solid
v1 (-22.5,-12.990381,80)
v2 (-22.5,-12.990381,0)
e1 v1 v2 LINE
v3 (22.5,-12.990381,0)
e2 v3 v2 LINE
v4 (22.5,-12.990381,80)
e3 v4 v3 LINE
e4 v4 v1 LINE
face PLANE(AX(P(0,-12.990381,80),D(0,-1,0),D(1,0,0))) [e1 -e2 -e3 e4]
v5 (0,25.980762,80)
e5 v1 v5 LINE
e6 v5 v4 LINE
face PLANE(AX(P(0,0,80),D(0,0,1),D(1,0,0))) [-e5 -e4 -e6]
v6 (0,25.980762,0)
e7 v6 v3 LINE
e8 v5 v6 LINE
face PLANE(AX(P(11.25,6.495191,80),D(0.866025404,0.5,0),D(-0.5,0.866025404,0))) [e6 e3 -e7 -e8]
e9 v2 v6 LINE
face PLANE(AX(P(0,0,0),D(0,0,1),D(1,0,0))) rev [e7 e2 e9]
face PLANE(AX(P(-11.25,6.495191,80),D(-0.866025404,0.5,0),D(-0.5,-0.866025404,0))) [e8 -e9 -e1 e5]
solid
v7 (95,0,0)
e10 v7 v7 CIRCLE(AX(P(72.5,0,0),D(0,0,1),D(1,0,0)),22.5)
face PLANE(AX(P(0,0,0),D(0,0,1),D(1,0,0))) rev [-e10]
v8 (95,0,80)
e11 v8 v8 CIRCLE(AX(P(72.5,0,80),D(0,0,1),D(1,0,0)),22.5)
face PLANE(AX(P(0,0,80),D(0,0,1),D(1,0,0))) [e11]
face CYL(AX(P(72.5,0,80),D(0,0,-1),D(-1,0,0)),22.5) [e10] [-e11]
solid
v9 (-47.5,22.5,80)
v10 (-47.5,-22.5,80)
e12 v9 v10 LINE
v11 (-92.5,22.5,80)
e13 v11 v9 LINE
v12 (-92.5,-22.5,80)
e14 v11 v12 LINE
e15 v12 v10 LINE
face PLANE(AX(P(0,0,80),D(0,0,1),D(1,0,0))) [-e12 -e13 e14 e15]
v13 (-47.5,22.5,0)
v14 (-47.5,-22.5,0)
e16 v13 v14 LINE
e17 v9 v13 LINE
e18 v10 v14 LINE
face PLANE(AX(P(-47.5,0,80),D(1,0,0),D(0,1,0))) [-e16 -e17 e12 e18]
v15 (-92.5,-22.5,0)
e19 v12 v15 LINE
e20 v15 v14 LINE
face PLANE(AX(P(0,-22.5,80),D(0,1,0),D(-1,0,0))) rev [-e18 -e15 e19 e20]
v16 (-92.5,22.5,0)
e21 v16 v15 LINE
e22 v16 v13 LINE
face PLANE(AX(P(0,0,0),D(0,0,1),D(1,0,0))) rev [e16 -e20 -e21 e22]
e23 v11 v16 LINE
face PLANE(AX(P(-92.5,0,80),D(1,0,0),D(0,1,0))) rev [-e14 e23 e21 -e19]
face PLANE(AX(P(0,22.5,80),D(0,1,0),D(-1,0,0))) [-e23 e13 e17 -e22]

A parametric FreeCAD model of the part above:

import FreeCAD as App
import Part
import Sketcher
Q = App.Units.Quantity

doc = App.newDocument("Part")
body = doc.addObject("PartDesign::Body", "Body")

sketch1 = doc.addObject("Sketcher::SketchObject", "Sketch")
body.addObject(sketch1)
sketch1.AttachmentSupport = (doc.XY_Plane, [""])
sketch1.MapMode = "FlatFace"
sketch1.addGeometry(Part.Circle(App.Vector(72, 0, 0), App.Vector(0, 0, 1), 22), False)
sketch1.addConstraint(Sketcher.Constraint("PointOnObject", 0, 3, -1))
sketch1.addConstraint(Sketcher.Constraint("Diameter", 0, 45.0))
sketch1.addConstraint(Sketcher.Constraint("DistanceX", -1, 1, 0, 3, 72.5))
pad1 = doc.addObject("PartDesign::Pad", "Pad")
body.addObject(pad1)
pad1.Profile = sketch1
pad1.Length = 80
body2 = doc.addObject("PartDesign::Body", "Body001")

sketch2 = doc.addObject("Sketcher::SketchObject", "Sketch001")
body2.addObject(sketch2)
sketch2.AttachmentSupport = (doc.getObject("XY_Plane001"), [""])
sketch2.MapMode = "FlatFace"
sketch2.addGeometry(Part.LineSegment(App.Vector(0, 26, 0), App.Vector(-22, -13, 0)), False)
sketch2.addGeometry(Part.LineSegment(App.Vector(-22, -13, 0), App.Vector(22, -13, 0)), False)
sketch2.addGeometry(Part.LineSegment(App.Vector(22, -13, 0), App.Vector(0, 26, 0)), False)
sketch2.addConstraint(Sketcher.Constraint("Coincident", 0, 2, 1, 1))
sketch2.addConstraint(Sketcher.Constraint("Coincident", 1, 2, 2, 1))
sketch2.addConstraint(Sketcher.Constraint("Coincident", 2, 2, 0, 1))
sketch2.addConstraint(Sketcher.Constraint("Horizontal", 1))
sketch2.addConstraint(Sketcher.Constraint("PointOnObject", 2, 2, -2))
sketch2.addConstraint(Sketcher.Constraint("Equal", 0, 2))
sketch2.addConstraint(Sketcher.Constraint("DistanceX", 1, 1, 1, 2, 45.0))
sketch2.addConstraint(Sketcher.Constraint("Angle", 0, Q("-120 deg")))
sketch2.addConstraint(Sketcher.Constraint("DistanceY", 0, 2, -1, 1, 12.990381))
pad2 = doc.addObject("PartDesign::Pad", "Pad001")
body2.addObject(pad2)
pad2.Profile = sketch2
pad2.Length = 80
body3 = doc.addObject("PartDesign::Body", "Body002")

sketch3 = doc.addObject("Sketcher::SketchObject", "Sketch002")
body3.addObject(sketch3)
sketch3.AttachmentSupport = (doc.getObject("XY_Plane002"), [""])
sketch3.MapMode = "FlatFace"
sketch3.addGeometry(Part.LineSegment(App.Vector(-92, 22, 0), App.Vector(-92, -22, 0)), False)
sketch3.addGeometry(Part.LineSegment(App.Vector(-92, -22, 0), App.Vector(-48, -22, 0)), False)
sketch3.addGeometry(Part.LineSegment(App.Vector(-48, -22, 0), App.Vector(-48, 22, 0)), False)
sketch3.addGeometry(Part.LineSegment(App.Vector(-48, 22, 0), App.Vector(-92, 22, 0)), False)
sketch3.addConstraint(Sketcher.Constraint("Coincident", 0, 2, 1, 1))
sketch3.addConstraint(Sketcher.Constraint("Coincident", 1, 2, 2, 1))
sketch3.addConstraint(Sketcher.Constraint("Coincident", 2, 2, 3, 1))
sketch3.addConstraint(Sketcher.Constraint("Coincident", 3, 2, 0, 1))
sketch3.addConstraint(Sketcher.Constraint("Vertical", 0))
sketch3.addConstraint(Sketcher.Constraint("Horizontal", 1))
sketch3.addConstraint(Sketcher.Constraint("Vertical", 2))
sketch3.addConstraint(Sketcher.Constraint("Horizontal", 3))
sketch3.addConstraint(Sketcher.Constraint("Equal", 3, 0))
sketch3.addConstraint(Sketcher.Constraint("DistanceX", 1, 1, 1, 2, 45.0))
sketch3.addConstraint(Sketcher.Constraint("DistanceX", 0, 2, -1, 1, 92.5))
sketch3.addConstraint(Sketcher.Constraint("DistanceY", 0, 2, -1, 1, 22.5))
pad3 = doc.addObject("PartDesign::Pad", "Pad002")
body3.addObject(pad3)
pad3.Profile = sketch3
pad3.Length = 80

doc.recompute()
